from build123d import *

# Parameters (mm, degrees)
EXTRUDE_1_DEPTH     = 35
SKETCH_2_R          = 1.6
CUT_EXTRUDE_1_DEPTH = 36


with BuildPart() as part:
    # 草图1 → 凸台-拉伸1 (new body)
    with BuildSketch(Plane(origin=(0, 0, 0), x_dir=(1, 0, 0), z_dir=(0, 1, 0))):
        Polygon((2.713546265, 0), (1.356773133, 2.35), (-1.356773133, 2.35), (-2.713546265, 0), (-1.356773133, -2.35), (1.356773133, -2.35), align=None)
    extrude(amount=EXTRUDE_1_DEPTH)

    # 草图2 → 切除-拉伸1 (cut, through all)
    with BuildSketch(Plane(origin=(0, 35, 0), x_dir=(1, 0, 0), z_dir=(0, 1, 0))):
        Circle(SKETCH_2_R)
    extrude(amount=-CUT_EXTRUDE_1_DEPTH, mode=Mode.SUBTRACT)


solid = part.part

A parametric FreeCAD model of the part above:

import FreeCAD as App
import Part
import Sketcher
Q = App.Units.Quantity


def add_polygon(sketch, points):
    """Adds a closed chain of lines whose ends are joined by coincident constraints."""
    first, n = sketch.GeometryCount, len(points)
    for a, b in zip(points, points[1:] + points[:1]):
        sketch.addGeometry(Part.LineSegment(App.Vector(*a, 0), App.Vector(*b, 0)), False)
    for i in range(n):
        sketch.addConstraint(Sketcher.Constraint("Coincident", first + i, 2, first + (i + 1) % n, 1))

doc = App.newDocument("Part")
body = doc.addObject("PartDesign::Body", "Body")

# Sketch on XZ plane
sketch1 = doc.addObject("Sketcher::SketchObject", "Sketch")
body.addObject(sketch1)
sketch1.AttachmentSupport = (doc.XZ_Plane, [""])
sketch1.MapMode = "FlatFace"
add_polygon(sketch1, [(2.7, 0), (1.4, -2.4), (-1.4, -2.4), (-2.7, 0), (-1.4, 2.4), (1.4, 2.4)])  # lines 0-5
sketch1.addConstraint([
    Sketcher.Constraint("Horizontal", 1),
    Sketcher.Constraint("Horizontal", 4),
    Sketcher.Constraint("Symmetric", 0, 2, 3, 2, -1, 1),
    Sketcher.Constraint("Symmetric", 2, 2, 5, 2, -1, 1),
    Sketcher.Constraint("PointOnObject", 2, 2, -1),
    Sketcher.Constraint("Parallel", 2, 5),
    Sketcher.Constraint("Vertical", 1, 2, 3, 2),
    Sketcher.Constraint("Angle", 0, Q("-120 deg")),
    Sketcher.Constraint("DistanceY", 1, 2, 3, 2, Q("4.7 mm")),
    Sketcher.Constraint("DistanceX", 1, 2, 1, 1, Q("2.713546 mm")),
])
pad1 = doc.addObject("PartDesign::Pad", "Pad")
body.addObject(pad1)
pad1.Profile = sketch1
pad1.Length = 35
pad1.Reversed = True

# Sketch on XZ plane
sketch2 = doc.addObject("Sketcher::SketchObject", "Sketch001")
body.addObject(sketch2)
sketch2.AttachmentSupport = (doc.XZ_Plane, [""])
sketch2.MapMode = "FlatFace"
sketch2.AttachmentOffset = App.Placement(App.Vector(0, 0, -35), App.Rotation())
sketch2.addGeometry(Part.Circle(App.Vector(0, 0, 0), App.Vector(0, 0, 1), 1.6), False)
sketch2.addConstraint([
    Sketcher.Constraint("Coincident", 0, 3, -1, 1),
    Sketcher.Constraint("Diameter", 0, Q("3.2 mm")),
])
pocket1 = doc.addObject("PartDesign::Pocket", "Pocket")
body.addObject(pocket1)
pocket1.Profile = sketch2
pocket1.Type = "ThroughAll"
pocket1.Reversed = True

doc.recompute()
